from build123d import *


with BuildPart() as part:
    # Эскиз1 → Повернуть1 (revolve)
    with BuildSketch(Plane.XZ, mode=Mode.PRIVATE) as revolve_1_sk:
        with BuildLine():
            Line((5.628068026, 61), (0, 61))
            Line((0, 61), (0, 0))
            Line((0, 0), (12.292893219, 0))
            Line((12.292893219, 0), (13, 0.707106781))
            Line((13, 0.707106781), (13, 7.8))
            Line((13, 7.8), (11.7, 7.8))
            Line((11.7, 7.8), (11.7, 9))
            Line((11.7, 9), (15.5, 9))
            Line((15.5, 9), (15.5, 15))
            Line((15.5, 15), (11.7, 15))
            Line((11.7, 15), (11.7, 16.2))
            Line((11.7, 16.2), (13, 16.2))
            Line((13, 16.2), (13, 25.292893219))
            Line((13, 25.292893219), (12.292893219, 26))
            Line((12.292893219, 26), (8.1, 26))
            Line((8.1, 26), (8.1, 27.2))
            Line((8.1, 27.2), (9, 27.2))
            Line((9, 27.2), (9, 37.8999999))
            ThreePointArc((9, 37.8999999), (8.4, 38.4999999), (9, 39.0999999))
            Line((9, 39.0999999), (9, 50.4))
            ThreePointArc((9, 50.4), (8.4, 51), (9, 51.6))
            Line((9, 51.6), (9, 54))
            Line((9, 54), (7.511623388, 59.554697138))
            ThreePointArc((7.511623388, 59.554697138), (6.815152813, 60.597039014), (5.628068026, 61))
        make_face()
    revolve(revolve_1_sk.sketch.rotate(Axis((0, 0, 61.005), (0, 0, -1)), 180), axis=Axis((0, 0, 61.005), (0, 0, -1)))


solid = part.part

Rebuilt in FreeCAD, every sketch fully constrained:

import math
import FreeCAD as App
import Part
import Sketcher
from FreeCAD import Vector
Q = App.Units.Quantity

doc = App.newDocument("Part")
body = doc.addObject("PartDesign::Body", "Body")

sketch1 = doc.addObject("Sketcher::SketchObject", "Sketch")
body.addObject(sketch1)
sketch1.AttachmentSupport = (doc.XZ_Plane, [""])
sketch1.MapMode = "FlatFace"
sketch1.addGeometry([
    Part.LineSegment(Vector(5.628068, 61, 0), Vector(0, 61, 0)),
    Part.LineSegment(Vector(0, 61, 0), Vector(0, 0, 0)),
    Part.LineSegment(Vector(0, 0, 0), Vector(12.292893, 0, 0)),
    Part.LineSegment(Vector(12.292893, 0, 0), Vector(13, 0.707107, 0)),
    Part.LineSegment(Vector(13, 0.707107, 0), Vector(13, 7.8, 0)),
    Part.LineSegment(Vector(13, 7.8, 0), Vector(11.7, 7.8, 0)),
    Part.LineSegment(Vector(11.7, 7.8, 0), Vector(11.7, 9, 0)),
    Part.LineSegment(Vector(11.7, 9, 0), Vector(15.5, 9, 0)),
    Part.LineSegment(Vector(15.5, 9, 0), Vector(15.5, 15, 0)),
    Part.LineSegment(Vector(15.5, 15, 0), Vector(11.7, 15, 0)),
    Part.LineSegment(Vector(11.7, 15, 0), Vector(11.7, 16.2, 0)),
    Part.LineSegment(Vector(11.7, 16.2, 0), Vector(13, 16.2, 0)),
    Part.LineSegment(Vector(13, 16.2, 0), Vector(13, 25.292893, 0)),
    Part.LineSegment(Vector(13, 25.292893, 0), Vector(12.292893, 26, 0)),
    Part.LineSegment(Vector(12.292893, 26, 0), Vector(8.1, 26, 0)),
    Part.LineSegment(Vector(8.1, 26, 0), Vector(8.1, 27.2, 0)),
    Part.LineSegment(Vector(8.1, 27.2, 0), Vector(9, 27.2, 0)),
    Part.LineSegment(Vector(9, 27.2, 0), Vector(9, 37.9, 0)),
    Part.ArcOfCircle(Part.Circle(Vector(9, 38.5, 0), Vector(0, 0, 1), 0.6), math.radians(90), math.radians(270)),
    Part.LineSegment(Vector(9, 39.1, 0), Vector(9, 50.4, 0)),
    Part.ArcOfCircle(Part.Circle(Vector(9, 51, 0), Vector(0, 0, 1), 0.6), math.radians(90), math.radians(270)),
    Part.LineSegment(Vector(9, 51.6, 0), Vector(9, 54, 0)),
    Part.LineSegment(Vector(9, 54, 0), Vector(7.511623, 59.554697, 0)),
    Part.ArcOfCircle(Part.Circle(Vector(5.628068, 59.05, 0), Vector(0, 0, 1), 1.95), math.radians(15), math.radians(90)),
], False)
sketch1.addConstraint([
    Sketcher.Constraint("Coincident", 0, 2, 1, 1),
    Sketcher.Constraint("Coincident", 1, 2, 2, 1),
    Sketcher.Constraint("Coincident", 2, 2, 3, 1),
    Sketcher.Constraint("Coincident", 3, 2, 4, 1),
    Sketcher.Constraint("Coincident", 4, 2, 5, 1),
    Sketcher.Constraint("Coincident", 5, 2, 6, 1),
    Sketcher.Constraint("Coincident", 6, 2, 7, 1),
    Sketcher.Constraint("Coincident", 7, 2, 8, 1),
    Sketcher.Constraint("Coincident", 8, 2, 9, 1),
    Sketcher.Constraint("Coincident", 9, 2, 10, 1),
    Sketcher.Constraint("Coincident", 10, 2, 11, 1),
    Sketcher.Constraint("Coincident", 11, 2, 12, 1),
    Sketcher.Constraint("Coincident", 12, 2, 13, 1),
    Sketcher.Constraint("Coincident", 13, 2, 14, 1),
    Sketcher.Constraint("Coincident", 14, 2, 15, 1),
    Sketcher.Constraint("Coincident", 15, 2, 16, 1),
    Sketcher.Constraint("Coincident", 16, 2, 17, 1),
    Sketcher.Constraint("Coincident", 17, 2, 18, 2),
    Sketcher.Constraint("Coincident", 18, 1, 19, 1),
    Sketcher.Constraint("Coincident", 19, 2, 20, 2),
    Sketcher.Constraint("Coincident", 20, 1, 21, 1),
    Sketcher.Constraint("Coincident", 21, 2, 22, 1),
    Sketcher.Constraint("Tangent", 22, 2, 23, 1),
    Sketcher.Constraint("Tangent", 23, 2, 0, 1),
    Sketcher.Constraint("Horizontal", 0),
    Sketcher.Constraint("Vertical", 1),
    Sketcher.Constraint("Horizontal", 2),
    Sketcher.Constraint("Vertical", 4),
    Sketcher.Constraint("Horizontal", 5),
    Sketcher.Constraint("Vertical", 6),
    Sketcher.Constraint("Horizontal", 7),
    Sketcher.Constraint("Vertical", 8),
    Sketcher.Constraint("Horizontal", 9),
    Sketcher.Constraint("Vertical", 10),
    Sketcher.Constraint("Horizontal", 11),
    Sketcher.Constraint("Vertical", 12),
    Sketcher.Constraint("Horizontal", 14),
    Sketcher.Constraint("Vertical", 15),
    Sketcher.Constraint("Horizontal", 16),
    Sketcher.Constraint("Vertical", 17),
    Sketcher.Constraint("Vertical", 19),
    Sketcher.Constraint("Vertical", 21),
    Sketcher.Constraint("Coincident", 1, 2, -1, 1),
    Sketcher.Constraint("Equal", 18, 20),
    Sketcher.Constraint("Perpendicular", 3, 13),
    Sketcher.Constraint("Vertical", 18, 3, 20, 3),
    Sketcher.Constraint("Vertical", 6, 2, 9, 2),
    Sketcher.Constraint("Vertical", 4, 2, 11, 2),
    Sketcher.Constraint("Vertical", 2, 2, 13, 2),
    Sketcher.Constraint("Vertical", 20, 3, 16, 2),
    Sketcher.Constraint("Vertical", 17, 2, 18, 1),
    Sketcher.Constraint("Vertical", 19, 2, 20, 1),
    Sketcher.Constraint("Equal", 6, 10),
    Sketcher.Constraint("Equal", 10, 15),
    Sketcher.Constraint("Equal", 3, 13),
    Sketcher.Constraint("Radius", 18, Q("0.6 mm")),
    Sketcher.Constraint("DistanceY", 1, 2, 1, 1, Q("61 mm")),
    Sketcher.Constraint("DistanceY", 8, 1, 8, 2, Q("6 mm")),
    Sketcher.Constraint("Angle", 22, Q("105 deg")),
    Sketcher.Constraint("Radius", 23, Q("1.95 mm")),
    Sketcher.Constraint("Distance", 3, Q("1 mm")),
    Sketcher.Constraint("DistanceX", 5, 2, 5, 1, Q("1.3 mm")),
    Sketcher.Constraint("DistanceX", 7, 1, 7, 2, Q("3.8 mm")),
    Sketcher.Constraint("DistanceX", 16, 1, 16, 2, Q("0.9 mm")),
    Sketcher.Constraint("DistanceY", 6, 1, 6, 2, Q("1.2 mm")),
    Sketcher.Constraint("DistanceY", 17, 1, 17, 2, Q("10.7 mm")),
    Sketcher.Constraint("DistanceY", 19, 1, 19, 2, Q("11.3 mm")),
    Sketcher.Constraint("DistanceY", 21, 1, 21, 2, Q("2.4 mm")),
    Sketcher.Constraint("DistanceX", -1, 1, 18, 3, Q("9 mm")),
    Sketcher.Constraint("DistanceY", -1, 1, 20, 3, Q("51 mm")),
    Sketcher.Constraint("DistanceX", -1, 1, 3, 2, Q("13 mm")),
    Sketcher.Constraint("DistanceY", -1, 1, 6, 2, Q("9 mm")),
])
revolution = doc.addObject("PartDesign::Revolution", "Revolution")
body.addObject(revolution)
revolution.Profile = sketch1
revolution.ReferenceAxis = (sketch1, ["V_Axis"])
revolution.Angle = 360

doc.recompute()
